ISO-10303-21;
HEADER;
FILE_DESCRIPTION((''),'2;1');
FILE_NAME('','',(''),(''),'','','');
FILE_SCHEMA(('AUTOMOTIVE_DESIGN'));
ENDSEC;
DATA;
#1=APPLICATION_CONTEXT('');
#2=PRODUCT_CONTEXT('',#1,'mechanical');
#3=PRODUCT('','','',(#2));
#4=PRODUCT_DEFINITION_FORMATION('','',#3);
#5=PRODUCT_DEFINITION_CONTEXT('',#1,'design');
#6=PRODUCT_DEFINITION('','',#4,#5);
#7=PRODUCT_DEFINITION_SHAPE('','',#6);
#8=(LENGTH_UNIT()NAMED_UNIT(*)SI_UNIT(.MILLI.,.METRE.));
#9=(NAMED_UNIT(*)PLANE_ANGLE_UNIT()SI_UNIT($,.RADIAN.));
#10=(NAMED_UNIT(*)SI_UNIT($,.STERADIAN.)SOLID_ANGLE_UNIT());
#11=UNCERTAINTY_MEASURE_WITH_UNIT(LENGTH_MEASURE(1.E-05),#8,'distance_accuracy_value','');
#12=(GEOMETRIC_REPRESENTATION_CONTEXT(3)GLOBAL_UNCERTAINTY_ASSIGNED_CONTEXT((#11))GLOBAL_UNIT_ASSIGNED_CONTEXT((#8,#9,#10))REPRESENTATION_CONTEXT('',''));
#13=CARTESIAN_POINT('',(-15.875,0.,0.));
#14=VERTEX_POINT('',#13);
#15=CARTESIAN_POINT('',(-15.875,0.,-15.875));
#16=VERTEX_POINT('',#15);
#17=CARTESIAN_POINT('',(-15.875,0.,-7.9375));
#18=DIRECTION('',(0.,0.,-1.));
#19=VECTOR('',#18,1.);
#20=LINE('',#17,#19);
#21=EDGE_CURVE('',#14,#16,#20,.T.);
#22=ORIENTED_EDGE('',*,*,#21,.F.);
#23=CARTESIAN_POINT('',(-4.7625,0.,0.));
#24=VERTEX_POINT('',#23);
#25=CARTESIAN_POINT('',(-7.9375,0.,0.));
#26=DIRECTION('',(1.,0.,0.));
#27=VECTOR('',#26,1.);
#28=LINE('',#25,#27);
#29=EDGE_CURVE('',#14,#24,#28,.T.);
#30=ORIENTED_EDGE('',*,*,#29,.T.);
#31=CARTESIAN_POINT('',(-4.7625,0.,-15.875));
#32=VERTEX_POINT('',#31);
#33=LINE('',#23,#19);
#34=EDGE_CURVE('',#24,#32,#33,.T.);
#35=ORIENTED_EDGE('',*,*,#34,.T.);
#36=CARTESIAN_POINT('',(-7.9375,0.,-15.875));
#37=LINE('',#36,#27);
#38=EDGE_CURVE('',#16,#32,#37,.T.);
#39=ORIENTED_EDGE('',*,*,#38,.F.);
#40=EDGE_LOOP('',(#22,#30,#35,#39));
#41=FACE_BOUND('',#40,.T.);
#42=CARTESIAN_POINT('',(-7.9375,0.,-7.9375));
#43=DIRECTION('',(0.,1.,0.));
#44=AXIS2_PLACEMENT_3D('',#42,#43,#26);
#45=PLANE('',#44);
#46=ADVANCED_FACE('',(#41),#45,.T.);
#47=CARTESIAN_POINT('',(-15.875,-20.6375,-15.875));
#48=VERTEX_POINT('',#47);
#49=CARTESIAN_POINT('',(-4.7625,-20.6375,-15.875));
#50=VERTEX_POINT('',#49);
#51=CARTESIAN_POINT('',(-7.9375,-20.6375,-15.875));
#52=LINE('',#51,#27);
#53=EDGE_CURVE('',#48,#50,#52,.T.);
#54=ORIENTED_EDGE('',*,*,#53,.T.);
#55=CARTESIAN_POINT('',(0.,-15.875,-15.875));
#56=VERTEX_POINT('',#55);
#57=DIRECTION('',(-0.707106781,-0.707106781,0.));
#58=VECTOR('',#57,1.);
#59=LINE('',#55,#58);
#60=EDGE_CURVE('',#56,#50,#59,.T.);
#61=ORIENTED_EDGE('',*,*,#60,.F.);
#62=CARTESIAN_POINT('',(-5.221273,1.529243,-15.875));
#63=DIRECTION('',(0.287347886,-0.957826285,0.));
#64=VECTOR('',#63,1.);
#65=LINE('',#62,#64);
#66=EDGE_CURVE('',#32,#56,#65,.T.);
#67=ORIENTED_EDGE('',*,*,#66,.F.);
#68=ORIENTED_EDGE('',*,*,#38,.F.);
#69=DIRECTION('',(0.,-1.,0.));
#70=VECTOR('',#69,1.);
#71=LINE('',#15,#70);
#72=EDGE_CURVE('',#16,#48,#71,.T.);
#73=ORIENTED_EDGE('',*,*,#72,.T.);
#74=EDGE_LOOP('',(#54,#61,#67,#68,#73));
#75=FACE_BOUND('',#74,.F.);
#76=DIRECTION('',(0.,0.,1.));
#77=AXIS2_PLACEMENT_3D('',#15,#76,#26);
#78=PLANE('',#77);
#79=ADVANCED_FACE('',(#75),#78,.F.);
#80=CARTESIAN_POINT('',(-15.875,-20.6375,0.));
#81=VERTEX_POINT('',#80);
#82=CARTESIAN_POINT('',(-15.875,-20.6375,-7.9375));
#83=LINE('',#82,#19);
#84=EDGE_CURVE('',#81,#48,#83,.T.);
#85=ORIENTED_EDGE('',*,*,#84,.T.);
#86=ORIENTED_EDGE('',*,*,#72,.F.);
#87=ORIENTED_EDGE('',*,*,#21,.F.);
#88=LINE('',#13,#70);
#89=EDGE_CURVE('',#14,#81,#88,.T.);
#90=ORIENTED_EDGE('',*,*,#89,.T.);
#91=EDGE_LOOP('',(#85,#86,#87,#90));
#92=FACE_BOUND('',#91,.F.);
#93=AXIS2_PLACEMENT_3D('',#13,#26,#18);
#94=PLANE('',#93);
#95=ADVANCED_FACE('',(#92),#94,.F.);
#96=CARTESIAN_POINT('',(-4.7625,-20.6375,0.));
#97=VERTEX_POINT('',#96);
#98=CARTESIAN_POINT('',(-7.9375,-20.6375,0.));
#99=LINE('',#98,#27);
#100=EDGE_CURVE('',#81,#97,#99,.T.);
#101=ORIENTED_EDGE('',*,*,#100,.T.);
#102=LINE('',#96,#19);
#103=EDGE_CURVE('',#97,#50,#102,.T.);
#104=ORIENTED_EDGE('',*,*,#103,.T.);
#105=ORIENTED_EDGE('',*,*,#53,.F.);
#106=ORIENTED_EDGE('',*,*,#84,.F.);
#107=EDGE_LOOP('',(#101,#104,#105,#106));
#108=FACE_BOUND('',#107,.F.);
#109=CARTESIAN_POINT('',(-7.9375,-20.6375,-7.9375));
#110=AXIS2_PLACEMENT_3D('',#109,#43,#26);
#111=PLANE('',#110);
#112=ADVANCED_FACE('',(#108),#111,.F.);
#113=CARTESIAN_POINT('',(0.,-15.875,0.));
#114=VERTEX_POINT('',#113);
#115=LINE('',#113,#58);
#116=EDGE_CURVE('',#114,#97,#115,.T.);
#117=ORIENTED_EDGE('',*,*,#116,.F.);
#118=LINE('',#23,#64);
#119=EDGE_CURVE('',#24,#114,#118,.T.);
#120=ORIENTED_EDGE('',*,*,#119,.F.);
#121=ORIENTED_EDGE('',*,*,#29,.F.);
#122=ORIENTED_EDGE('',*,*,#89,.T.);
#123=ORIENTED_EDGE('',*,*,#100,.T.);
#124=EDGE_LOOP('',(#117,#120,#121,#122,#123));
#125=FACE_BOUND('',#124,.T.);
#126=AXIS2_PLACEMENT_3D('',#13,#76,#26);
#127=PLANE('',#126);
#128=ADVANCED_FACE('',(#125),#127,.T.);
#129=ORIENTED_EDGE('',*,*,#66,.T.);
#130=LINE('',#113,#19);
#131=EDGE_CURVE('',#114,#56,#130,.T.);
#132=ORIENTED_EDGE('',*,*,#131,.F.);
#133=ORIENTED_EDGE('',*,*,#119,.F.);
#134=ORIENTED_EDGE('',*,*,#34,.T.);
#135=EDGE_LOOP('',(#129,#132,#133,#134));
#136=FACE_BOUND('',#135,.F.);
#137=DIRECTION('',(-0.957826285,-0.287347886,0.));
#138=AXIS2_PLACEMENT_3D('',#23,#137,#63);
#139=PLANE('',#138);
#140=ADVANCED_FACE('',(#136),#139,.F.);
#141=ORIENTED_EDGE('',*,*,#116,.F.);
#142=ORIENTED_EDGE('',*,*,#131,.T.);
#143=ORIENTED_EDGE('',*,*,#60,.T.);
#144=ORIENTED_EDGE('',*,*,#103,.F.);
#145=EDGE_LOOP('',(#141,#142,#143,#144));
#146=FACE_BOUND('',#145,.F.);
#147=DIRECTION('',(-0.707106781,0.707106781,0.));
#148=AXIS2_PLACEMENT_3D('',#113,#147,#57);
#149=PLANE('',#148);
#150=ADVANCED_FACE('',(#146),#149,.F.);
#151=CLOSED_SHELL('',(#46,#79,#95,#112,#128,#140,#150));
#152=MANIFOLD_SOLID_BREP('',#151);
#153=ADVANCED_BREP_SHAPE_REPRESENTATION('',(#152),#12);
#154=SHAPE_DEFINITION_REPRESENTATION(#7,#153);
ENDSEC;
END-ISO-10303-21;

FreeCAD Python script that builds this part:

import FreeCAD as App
import Part
import Sketcher

V = App.Vector
Q = App.Units.Quantity


def add_polygon(sketch, points):
    """Adds a closed chain of lines whose ends are joined by coincident constraints."""
    first, n = sketch.GeometryCount, len(points)
    for a, b in zip(points, points[1:] + points[:1]):
        sketch.addGeometry(Part.LineSegment(App.Vector(*a, 0), App.Vector(*b, 0)), False)
    for i in range(n):
        sketch.addConstraint(Sketcher.Constraint("Coincident", first + i, 2, first + (i + 1) % n, 1))

doc = App.newDocument("Part")
body = doc.addObject("PartDesign::Body", "Body")

sketch1 = body.newObject("Sketcher::SketchObject", "Sketch")
sketch1.AttachmentSupport = (doc.getObject("XY_Plane"), [""])
sketch1.MapMode = "FlatFace"
add_polygon(sketch1, [(-8, 8), (-8, -8), (8, -8), (8, 8)])
sketch1.addConstraint([
    Sketcher.Constraint("Vertical", 0),
    Sketcher.Constraint("Horizontal", 1),
    Sketcher.Constraint("Vertical", 2),
    Sketcher.Constraint("Horizontal", 3),
    Sketcher.Constraint("Symmetric", 0, 2, 2, 2, -1, 1),
    Sketcher.Constraint("Equal", 3, 0),
    Sketcher.Constraint("DistanceX", 1, 1, 1, 2, Q("0.625 in")),
])
pad1 = body.newObject("PartDesign::Pad", "Pad")
pad1.Profile = sketch1
pad1.Length = Q("0.8125 in")
pad1.Reversed = True

sketch2 = body.newObject("Sketcher::SketchObject", "Sketch001")
sketch2.AttachmentSupport = (doc.getObject("XZ_Plane"), [""])
sketch2.MapMode = "FlatFace"
sketch2.AttachmentOffset = App.Placement(V(0, 0, 0.3125 * 25.4), App.Rotation())
add_polygon(sketch2, [(7.9, 0), (3.2, 0), (7.9, -15.9)])
sketch2.addConstraint([
    Sketcher.Constraint("Horizontal", 0),
    Sketcher.Constraint("Vertical", 2),
    Sketcher.Constraint("PointOnObject", 0, 2, -1),
    Sketcher.Constraint("DistanceX", 0, 2, 0, 1, Q("0.1875 in")),
    Sketcher.Constraint("DistanceY", 2, 1, 2, 2, Q("0.625 in")),
    Sketcher.Constraint("DistanceX", -1, 1, 0, 2, Q("0.125 in")),
])
pocket1 = body.newObject("PartDesign::Pocket", "Pocket")
pocket1.Profile = sketch2
pocket1.Type = "ThroughAll"

sketch3 = body.newObject("Sketcher::SketchObject", "Sketch002")
sketch3.AttachmentSupport = (doc.getObject("XZ_Plane"), [""])
sketch3.MapMode = "FlatFace"
sketch3.AttachmentOffset = App.Placement(V(0, 0, 0.3125 * 25.4), App.Rotation())
add_polygon(sketch3, [(7.9, -20.6), (7.9, -15.9), (3.2, -20.6)])
sketch3.addConstraint([
    Sketcher.Constraint("Vertical", 0),
    Sketcher.Constraint("Horizontal", 2),
    Sketcher.Constraint("Equal", 2, 0),
    Sketcher.Constraint("DistanceX", 2, 1, 2, 2, Q("0.1875 in")),
    Sketcher.Constraint("DistanceX", -1, 1, 0, 2, Q("0.3125 in")),
    Sketcher.Constraint("DistanceY", 0, 2, -1, 1, Q("0.625 in")),
])
pocket2 = body.newObject("PartDesign::Pocket", "Pocket001")
pocket2.Profile = sketch3
pocket2.Type = "ThroughAll"
body2 = doc.addObject("PartDesign::Body", "Body001")
doc.recompute()

body.Placement = App.Placement(V(-7.9375, 0, 0), App.Rotation(V(0, 0, 1), 0))
boolean = body2.newObject("PartDesign::Boolean", "Boolean")
boolean.Type = "Fuse"
boolean.addObjects([body])
body3 = doc.addObject("PartDesign::Body", "Body002")
doc.recompute()

body2.Placement = App.Placement(V(0, 7.9375, 0), App.Rotation(V(0, 0, 1), 0))
boolean2 = body3.newObject("PartDesign::Boolean", "Boolean001")
boolean2.Type = "Fuse"
boolean2.addObjects([body2])
body4 = doc.addObject("PartDesign::Body", "Body003")
doc.recompute()

body3.Placement = App.Placement(V(0, 0, 0), App.Rotation(V(-1, 0, 0), 90))
boolean3 = body4.newObject("PartDesign::Boolean", "Boolean002")
boolean3.Type = "Fuse"
boolean3.addObjects([body3])

doc.recompute()
